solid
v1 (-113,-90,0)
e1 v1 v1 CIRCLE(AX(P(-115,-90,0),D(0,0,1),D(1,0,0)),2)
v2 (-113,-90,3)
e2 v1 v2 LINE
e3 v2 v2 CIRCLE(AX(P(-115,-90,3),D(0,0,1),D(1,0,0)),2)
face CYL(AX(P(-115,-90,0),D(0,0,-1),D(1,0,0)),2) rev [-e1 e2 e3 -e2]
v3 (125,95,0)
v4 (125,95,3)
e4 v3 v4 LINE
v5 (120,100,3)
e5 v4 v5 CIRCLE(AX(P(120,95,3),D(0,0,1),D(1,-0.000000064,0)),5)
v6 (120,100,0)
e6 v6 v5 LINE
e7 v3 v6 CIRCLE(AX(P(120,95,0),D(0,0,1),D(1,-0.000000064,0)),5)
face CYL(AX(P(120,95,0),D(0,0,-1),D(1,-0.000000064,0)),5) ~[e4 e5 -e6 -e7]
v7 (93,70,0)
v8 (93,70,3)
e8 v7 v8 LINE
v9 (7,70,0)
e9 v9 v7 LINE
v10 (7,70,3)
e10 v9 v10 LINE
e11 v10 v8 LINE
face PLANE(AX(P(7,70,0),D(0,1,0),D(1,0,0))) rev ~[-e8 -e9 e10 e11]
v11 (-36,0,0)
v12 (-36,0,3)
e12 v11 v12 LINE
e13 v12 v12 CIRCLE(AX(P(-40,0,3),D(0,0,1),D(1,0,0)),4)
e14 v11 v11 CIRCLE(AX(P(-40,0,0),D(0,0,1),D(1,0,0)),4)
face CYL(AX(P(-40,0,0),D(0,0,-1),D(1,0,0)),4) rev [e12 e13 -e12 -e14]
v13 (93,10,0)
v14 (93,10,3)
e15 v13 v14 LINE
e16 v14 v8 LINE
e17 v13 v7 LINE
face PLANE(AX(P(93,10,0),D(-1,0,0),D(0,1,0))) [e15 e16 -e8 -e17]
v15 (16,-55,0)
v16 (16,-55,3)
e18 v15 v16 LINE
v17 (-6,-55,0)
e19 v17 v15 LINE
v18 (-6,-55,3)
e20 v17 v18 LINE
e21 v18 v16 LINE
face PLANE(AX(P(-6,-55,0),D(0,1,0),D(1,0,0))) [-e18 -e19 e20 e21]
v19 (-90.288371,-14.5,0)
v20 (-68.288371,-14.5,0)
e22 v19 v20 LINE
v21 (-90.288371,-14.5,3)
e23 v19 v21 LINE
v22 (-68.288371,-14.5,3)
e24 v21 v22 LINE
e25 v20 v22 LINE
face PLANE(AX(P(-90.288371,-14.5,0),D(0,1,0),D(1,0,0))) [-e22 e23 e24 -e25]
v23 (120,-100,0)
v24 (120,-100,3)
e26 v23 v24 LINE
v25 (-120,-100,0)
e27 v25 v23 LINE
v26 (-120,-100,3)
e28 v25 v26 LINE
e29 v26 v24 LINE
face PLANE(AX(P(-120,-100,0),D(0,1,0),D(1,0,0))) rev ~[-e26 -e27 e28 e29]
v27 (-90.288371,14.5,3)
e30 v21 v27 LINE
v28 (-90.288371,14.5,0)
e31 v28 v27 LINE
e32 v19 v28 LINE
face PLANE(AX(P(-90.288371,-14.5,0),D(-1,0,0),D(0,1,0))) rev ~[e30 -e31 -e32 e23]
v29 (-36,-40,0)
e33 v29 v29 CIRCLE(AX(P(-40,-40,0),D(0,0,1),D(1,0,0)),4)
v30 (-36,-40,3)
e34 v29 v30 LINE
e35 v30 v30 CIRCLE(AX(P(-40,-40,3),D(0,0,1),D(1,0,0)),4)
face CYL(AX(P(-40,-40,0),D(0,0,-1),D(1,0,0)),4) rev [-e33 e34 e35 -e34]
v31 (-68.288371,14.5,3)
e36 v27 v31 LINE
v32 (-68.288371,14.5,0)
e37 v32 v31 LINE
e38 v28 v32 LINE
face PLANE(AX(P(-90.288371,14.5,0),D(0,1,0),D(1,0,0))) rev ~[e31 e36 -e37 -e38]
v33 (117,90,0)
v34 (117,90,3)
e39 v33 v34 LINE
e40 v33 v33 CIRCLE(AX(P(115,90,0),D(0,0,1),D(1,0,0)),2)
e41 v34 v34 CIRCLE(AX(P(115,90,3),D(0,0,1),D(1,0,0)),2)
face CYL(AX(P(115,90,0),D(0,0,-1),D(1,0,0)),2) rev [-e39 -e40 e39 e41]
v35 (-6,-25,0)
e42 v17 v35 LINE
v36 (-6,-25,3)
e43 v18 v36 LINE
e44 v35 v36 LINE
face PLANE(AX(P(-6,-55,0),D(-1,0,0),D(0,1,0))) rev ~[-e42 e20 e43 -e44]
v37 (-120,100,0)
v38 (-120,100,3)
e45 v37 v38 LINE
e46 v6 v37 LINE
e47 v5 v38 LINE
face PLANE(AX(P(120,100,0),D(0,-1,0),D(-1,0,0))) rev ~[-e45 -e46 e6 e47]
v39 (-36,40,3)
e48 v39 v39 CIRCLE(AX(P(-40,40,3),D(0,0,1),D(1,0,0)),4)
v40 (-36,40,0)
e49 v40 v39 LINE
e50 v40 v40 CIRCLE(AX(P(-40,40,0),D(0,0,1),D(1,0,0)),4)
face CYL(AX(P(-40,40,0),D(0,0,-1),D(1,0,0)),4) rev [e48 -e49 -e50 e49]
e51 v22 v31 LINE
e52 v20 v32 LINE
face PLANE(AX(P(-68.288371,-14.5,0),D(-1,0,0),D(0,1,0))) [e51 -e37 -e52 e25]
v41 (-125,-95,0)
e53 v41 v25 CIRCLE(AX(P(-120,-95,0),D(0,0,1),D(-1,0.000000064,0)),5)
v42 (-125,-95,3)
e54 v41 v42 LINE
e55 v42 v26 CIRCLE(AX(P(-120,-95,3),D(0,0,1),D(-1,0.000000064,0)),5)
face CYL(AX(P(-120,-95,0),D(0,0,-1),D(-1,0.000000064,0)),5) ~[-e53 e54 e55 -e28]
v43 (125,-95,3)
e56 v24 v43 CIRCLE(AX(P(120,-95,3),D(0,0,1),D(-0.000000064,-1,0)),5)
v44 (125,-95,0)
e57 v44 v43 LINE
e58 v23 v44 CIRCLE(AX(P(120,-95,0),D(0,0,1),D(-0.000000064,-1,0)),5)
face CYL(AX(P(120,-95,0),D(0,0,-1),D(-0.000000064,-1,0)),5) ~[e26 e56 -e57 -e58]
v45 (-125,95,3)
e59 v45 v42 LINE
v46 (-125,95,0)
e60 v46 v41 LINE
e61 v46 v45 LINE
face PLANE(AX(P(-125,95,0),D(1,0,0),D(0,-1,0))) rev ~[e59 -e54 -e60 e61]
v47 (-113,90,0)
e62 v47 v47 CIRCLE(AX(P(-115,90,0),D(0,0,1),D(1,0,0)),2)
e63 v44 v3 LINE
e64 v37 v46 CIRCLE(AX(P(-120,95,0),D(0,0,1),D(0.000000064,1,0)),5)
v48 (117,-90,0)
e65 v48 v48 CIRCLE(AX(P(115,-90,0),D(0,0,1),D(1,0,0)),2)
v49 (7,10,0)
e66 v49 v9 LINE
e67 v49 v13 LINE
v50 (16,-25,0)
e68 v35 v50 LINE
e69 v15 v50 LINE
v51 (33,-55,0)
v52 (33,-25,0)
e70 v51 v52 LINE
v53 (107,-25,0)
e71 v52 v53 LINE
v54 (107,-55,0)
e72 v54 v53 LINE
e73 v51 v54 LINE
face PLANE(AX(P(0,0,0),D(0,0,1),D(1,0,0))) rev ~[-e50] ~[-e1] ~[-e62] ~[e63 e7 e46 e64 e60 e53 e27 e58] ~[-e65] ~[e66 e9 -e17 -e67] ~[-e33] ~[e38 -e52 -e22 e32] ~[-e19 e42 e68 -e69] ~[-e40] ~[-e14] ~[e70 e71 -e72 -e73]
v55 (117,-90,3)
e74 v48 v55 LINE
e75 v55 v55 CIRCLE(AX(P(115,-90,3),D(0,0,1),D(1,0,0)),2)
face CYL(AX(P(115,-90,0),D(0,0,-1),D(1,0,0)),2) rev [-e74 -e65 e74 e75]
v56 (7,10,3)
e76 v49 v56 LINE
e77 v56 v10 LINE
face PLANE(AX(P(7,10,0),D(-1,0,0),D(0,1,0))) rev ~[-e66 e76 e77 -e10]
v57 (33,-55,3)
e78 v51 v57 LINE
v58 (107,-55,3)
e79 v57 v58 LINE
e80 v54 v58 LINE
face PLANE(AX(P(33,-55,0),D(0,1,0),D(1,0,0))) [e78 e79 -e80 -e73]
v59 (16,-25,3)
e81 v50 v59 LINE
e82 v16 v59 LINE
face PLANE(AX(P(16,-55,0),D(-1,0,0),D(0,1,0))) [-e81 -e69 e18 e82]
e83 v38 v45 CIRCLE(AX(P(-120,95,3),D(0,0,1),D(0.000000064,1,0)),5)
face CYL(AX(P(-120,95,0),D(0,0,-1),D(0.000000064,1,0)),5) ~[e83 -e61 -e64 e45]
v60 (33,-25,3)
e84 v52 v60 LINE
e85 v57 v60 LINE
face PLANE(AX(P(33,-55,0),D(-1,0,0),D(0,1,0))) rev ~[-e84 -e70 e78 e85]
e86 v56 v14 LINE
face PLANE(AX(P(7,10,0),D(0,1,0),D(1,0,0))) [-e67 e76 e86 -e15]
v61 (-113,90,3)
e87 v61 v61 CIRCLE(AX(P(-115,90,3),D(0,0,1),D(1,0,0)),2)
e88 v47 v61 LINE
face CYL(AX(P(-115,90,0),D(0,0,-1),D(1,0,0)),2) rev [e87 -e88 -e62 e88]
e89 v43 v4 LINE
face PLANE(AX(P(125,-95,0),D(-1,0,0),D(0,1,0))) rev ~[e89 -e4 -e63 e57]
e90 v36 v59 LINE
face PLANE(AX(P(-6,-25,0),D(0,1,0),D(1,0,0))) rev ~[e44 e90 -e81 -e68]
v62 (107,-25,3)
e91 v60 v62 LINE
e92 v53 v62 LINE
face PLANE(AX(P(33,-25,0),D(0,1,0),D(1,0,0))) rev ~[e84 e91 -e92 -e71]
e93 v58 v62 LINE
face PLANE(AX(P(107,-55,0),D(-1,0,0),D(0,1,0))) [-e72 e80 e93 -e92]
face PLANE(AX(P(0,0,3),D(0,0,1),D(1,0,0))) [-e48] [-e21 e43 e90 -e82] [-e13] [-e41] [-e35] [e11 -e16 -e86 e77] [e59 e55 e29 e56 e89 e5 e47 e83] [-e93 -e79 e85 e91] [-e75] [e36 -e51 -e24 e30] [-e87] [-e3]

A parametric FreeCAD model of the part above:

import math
import FreeCAD as App
import Part
import Sketcher


def add_polygon(sketch, points):
    """Adds a closed chain of lines whose ends are joined by coincident constraints."""
    first, n = sketch.GeometryCount, len(points)
    for a, b in zip(points, points[1:] + points[:1]):
        sketch.addGeometry(Part.LineSegment(App.Vector(*a, 0), App.Vector(*b, 0)), False)
    for i in range(n):
        sketch.addConstraint(Sketcher.Constraint("Coincident", first + i, 2, first + (i + 1) % n, 1))

doc = App.newDocument("Part")
body = doc.addObject("PartDesign::Body", "Body")

sketch1 = doc.addObject("Sketcher::SketchObject", "Sketch")
body.addObject(sketch1)
sketch1.AttachmentSupport = (doc.XY_Plane, [""])
sketch1.MapMode = "FlatFace"
sketch1.addGeometry(Part.LineSegment(App.Vector(-120, -100, 0), App.Vector(120, -100, 0)), False)
sketch1.addGeometry(Part.ArcOfCircle(Part.Circle(App.Vector(120, -95, 0), App.Vector(0, 0, 1), 5), math.radians(-90), math.radians(0)), False)
sketch1.addGeometry(Part.LineSegment(App.Vector(125, -95, 0), App.Vector(125, 95, 0)), False)
sketch1.addGeometry(Part.ArcOfCircle(Part.Circle(App.Vector(120, 95, 0), App.Vector(0, 0, 1), 5), math.radians(0), math.radians(90)), False)
sketch1.addGeometry(Part.LineSegment(App.Vector(120, 100, 0), App.Vector(-120, 100, 0)), False)
sketch1.addGeometry(Part.ArcOfCircle(Part.Circle(App.Vector(-120, 95, 0), App.Vector(0, 0, 1), 5), math.radians(90), math.radians(180)), False)
sketch1.addGeometry(Part.LineSegment(App.Vector(-125, 95, 0), App.Vector(-125, -95, 0)), False)
sketch1.addGeometry(Part.ArcOfCircle(Part.Circle(App.Vector(-120, -95, 0), App.Vector(0, 0, 1), 5), math.radians(180), math.radians(270)), False)
sketch1.addGeometry(Part.Circle(App.Vector(-115, -90, 0), App.Vector(0, 0, 1), 2), False)
sketch1.addGeometry(Part.Circle(App.Vector(-40, -40, 0), App.Vector(0, 0, 1), 4), False)
sketch1.addGeometry(Part.Circle(App.Vector(115, -90, 0), App.Vector(0, 0, 1), 2), False)
add_polygon(sketch1, [(16, -55), (-6, -55), (-6, -25), (16, -25)])
add_polygon(sketch1, [(107, -55), (33, -55), (33, -25), (107, -25)])
add_polygon(sketch1, [(-68.3, -14.5), (-90.3, -14.5), (-90.3, 14.5), (-68.3, 14.5)])
sketch1.addGeometry(Part.Circle(App.Vector(-40, 0, 0), App.Vector(0, 0, 1), 4), False)
sketch1.addGeometry(Part.Circle(App.Vector(-40, 40, 0), App.Vector(0, 0, 1), 4), False)
sketch1.addGeometry(Part.Circle(App.Vector(-115, 90, 0), App.Vector(0, 0, 1), 2), False)
add_polygon(sketch1, [(93, 10), (7, 10), (7, 70), (93, 70)])
sketch1.addGeometry(Part.Circle(App.Vector(115, 90, 0), App.Vector(0, 0, 1), 2), False)
sketch1.addConstraint([
    Sketcher.Constraint("Tangent", 0, 2, 1, 1),
    Sketcher.Constraint("Tangent", 1, 2, 2, 1),
    Sketcher.Constraint("Tangent", 2, 2, 3, 1),
    Sketcher.Constraint("Tangent", 3, 2, 4, 1),
    Sketcher.Constraint("Tangent", 4, 2, 5, 1),
    Sketcher.Constraint("Tangent", 5, 2, 6, 1),
    Sketcher.Constraint("Tangent", 6, 2, 7, 1),
    Sketcher.Constraint("Tangent", 7, 2, 0, 1),
    Sketcher.Constraint("Horizontal", 0),
    Sketcher.Constraint("Vertical", 2),
    Sketcher.Constraint("Horizontal", 4),
    Sketcher.Constraint("Vertical", 6),
    Sketcher.Constraint("Horizontal", 11),
    Sketcher.Constraint("Vertical", 12),
    Sketcher.Constraint("Horizontal", 13),
    Sketcher.Constraint("Vertical", 14),
    Sketcher.Constraint("Horizontal", 15),
    Sketcher.Constraint("Vertical", 16),
    Sketcher.Constraint("Horizontal", 17),
    Sketcher.Constraint("Vertical", 18),
    Sketcher.Constraint("Horizontal", 19),
    Sketcher.Constraint("Vertical", 20),
    Sketcher.Constraint("Horizontal", 21),
    Sketcher.Constraint("Vertical", 22),
    Sketcher.Constraint("Horizontal", 26),
    Sketcher.Constraint("Vertical", 27),
    Sketcher.Constraint("Horizontal", 28),
    Sketcher.Constraint("Vertical", 29),
    Sketcher.Constraint("Equal", 1, 3),
    Sketcher.Constraint("Equal", 3, 5),
    Sketcher.Constraint("Equal", 5, 7),
    Sketcher.Constraint("Equal", 8, 10),
    Sketcher.Constraint("Equal", 9, 23),
    Sketcher.Constraint("Equal", 23, 24),
    Sketcher.Constraint("Equal", 10, 25),
    Sketcher.Constraint("Equal", 25, 30),
    Sketcher.Constraint("Symmetric", 1, 3, 5, 3, -1, 1),
    Sketcher.Constraint("Symmetric", 10, 3, 25, 3, -1, 1),
    Sketcher.Constraint("Symmetric", 8, 3, 30, 3, -1, 1),
    Sketcher.Constraint("Symmetric", 8, 3, 10, 3, -2),
    Sketcher.Constraint("Symmetric", 9, 3, 24, 3, -1),
    Sketcher.Constraint("PointOnObject", 23, 3, -1),
    Sketcher.Constraint("Horizontal", 14, 2, 15, 2),
    Sketcher.Constraint("Horizontal", 13, 2, 16, 2),
    Sketcher.Constraint("Vertical", 9, 3, 23, 3),
    Sketcher.Constraint("Equal", 13, 19),
    Sketcher.Constraint("Diameter", 8, 4.0),
    Sketcher.Constraint("Diameter", 9, 8.0),
    Sketcher.Constraint("Radius", 1, 5.0),
    Sketcher.Constraint("DistanceX", 0, 1, 0, 2, 240.0),
    Sketcher.Constraint("DistanceX", 11, 2, 11, 1, 22.0),
    Sketcher.Constraint("DistanceX", 15, 2, 15, 1, 74.0),
    Sketcher.Constraint("DistanceX", 26, 2, 26, 1, 86.0),
    Sketcher.Constraint("DistanceY", 2, 1, 2, 2, 190.0),
    Sketcher.Constraint("DistanceY", 12, 1, 12, 2, 30.0),
    Sketcher.Constraint("DistanceY", 20, 1, 20, 2, 29.0),
    Sketcher.Constraint("DistanceY", 27, 1, 27, 2, 60.0),
    Sketcher.Constraint("DistanceX", 8, 3, -1, 1, 115.0),
    Sketcher.Constraint("DistanceY", 8, 3, -1, 1, 90.0),
    Sketcher.Constraint("DistanceX", 9, 3, -1, 1, 40.0),
    Sketcher.Constraint("DistanceY", 9, 3, -1, 1, 40.0),
    Sketcher.Constraint("DistanceX", 11, 2, -1, 1, 6.0),
    Sketcher.Constraint("DistanceY", 11, 2, -1, 1, 55.0),
    Sketcher.Constraint("DistanceX", -1, 1, 15, 2, 33.0),
    Sketcher.Constraint("DistanceX", -1, 1, 26, 2, 7.0),
    Sketcher.Constraint("DistanceY", -1, 1, 26, 2, 10.0),
    Sketcher.Constraint("DistanceY", 19, 2, -1, 1, 14.5),
    Sketcher.Constraint("DistanceX", 19, 2, -1, 1, 90.288371),
])
pad1 = doc.addObject("PartDesign::Pad", "Pad")
body.addObject(pad1)
pad1.Profile = sketch1
pad1.Length = 3

doc.recompute()
